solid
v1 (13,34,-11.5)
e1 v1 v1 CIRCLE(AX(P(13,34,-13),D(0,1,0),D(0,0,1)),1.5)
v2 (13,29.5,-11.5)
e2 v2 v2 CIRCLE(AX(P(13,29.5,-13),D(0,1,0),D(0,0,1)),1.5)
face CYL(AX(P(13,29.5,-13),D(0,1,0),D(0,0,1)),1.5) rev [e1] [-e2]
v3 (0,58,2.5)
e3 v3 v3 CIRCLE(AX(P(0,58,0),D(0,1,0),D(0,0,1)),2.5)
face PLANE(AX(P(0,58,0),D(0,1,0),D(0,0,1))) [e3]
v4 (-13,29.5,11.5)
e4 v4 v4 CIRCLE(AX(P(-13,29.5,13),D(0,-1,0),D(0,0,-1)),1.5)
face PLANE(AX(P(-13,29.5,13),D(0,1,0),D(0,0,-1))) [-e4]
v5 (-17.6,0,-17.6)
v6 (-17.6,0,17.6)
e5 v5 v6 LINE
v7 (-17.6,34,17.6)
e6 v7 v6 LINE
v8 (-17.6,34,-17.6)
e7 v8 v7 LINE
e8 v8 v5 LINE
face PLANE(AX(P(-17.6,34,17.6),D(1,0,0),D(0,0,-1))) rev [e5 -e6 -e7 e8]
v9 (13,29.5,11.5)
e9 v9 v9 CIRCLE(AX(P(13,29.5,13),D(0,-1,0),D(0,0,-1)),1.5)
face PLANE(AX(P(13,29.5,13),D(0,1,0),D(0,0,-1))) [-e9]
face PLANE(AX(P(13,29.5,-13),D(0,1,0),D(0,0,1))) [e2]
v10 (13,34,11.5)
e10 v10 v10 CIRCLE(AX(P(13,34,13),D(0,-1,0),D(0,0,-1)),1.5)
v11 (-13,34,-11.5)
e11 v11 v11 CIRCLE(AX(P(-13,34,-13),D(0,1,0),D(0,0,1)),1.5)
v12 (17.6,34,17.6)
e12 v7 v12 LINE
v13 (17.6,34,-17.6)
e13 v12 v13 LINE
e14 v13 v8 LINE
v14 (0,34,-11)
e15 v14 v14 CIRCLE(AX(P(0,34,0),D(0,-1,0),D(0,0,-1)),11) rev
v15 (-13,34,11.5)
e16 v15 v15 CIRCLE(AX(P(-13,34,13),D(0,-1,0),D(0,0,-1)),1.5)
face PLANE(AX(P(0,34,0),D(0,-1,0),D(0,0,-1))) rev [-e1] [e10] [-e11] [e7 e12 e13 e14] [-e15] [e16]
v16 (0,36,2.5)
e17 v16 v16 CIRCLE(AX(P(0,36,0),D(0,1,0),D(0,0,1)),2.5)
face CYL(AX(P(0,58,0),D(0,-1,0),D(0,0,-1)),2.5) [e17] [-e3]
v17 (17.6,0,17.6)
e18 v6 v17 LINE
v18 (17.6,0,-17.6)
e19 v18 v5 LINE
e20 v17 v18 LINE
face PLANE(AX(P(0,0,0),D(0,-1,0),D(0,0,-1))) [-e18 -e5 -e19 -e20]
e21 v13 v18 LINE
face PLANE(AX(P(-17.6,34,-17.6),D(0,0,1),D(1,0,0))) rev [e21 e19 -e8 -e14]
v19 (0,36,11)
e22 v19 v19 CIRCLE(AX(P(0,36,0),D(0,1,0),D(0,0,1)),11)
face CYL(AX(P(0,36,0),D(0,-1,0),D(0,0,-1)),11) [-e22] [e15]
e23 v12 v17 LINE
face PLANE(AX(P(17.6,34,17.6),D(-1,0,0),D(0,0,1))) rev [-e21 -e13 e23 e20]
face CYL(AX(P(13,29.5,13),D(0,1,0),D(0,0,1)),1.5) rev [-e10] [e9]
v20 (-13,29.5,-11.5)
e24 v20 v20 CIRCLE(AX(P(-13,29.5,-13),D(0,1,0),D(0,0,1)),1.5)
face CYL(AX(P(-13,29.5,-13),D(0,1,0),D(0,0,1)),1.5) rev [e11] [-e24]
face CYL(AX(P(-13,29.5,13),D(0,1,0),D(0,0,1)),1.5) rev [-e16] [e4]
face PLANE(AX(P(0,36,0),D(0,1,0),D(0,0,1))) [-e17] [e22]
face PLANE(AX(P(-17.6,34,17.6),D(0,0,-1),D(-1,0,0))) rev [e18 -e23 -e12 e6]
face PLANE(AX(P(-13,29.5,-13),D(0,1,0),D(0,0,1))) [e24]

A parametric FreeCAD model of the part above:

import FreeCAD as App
import Part
import Sketcher
Q = App.Units.Quantity

doc = App.newDocument("Part")
body = doc.addObject("PartDesign::Body", "Body")

sketch1 = doc.addObject("Sketcher::SketchObject", "Sketch")
body.addObject(sketch1)
sketch1.AttachmentSupport = (doc.XZ_Plane, [""])
sketch1.MapMode = "FlatFace"
sketch1.addGeometry(Part.LineSegment(App.Vector(-18, -18, 0), App.Vector(-18, 18, 0)), False)
sketch1.addGeometry(Part.LineSegment(App.Vector(-18, 18, 0), App.Vector(18, 18, 0)), False)
sketch1.addGeometry(Part.LineSegment(App.Vector(18, 18, 0), App.Vector(18, -18, 0)), False)
sketch1.addGeometry(Part.LineSegment(App.Vector(18, -18, 0), App.Vector(-18, -18, 0)), False)
sketch1.addConstraint(Sketcher.Constraint("Coincident", 0, 2, 1, 1))
sketch1.addConstraint(Sketcher.Constraint("Coincident", 1, 2, 2, 1))
sketch1.addConstraint(Sketcher.Constraint("Coincident", 2, 2, 3, 1))
sketch1.addConstraint(Sketcher.Constraint("Coincident", 3, 2, 0, 1))
sketch1.addConstraint(Sketcher.Constraint("Vertical", 0))
sketch1.addConstraint(Sketcher.Constraint("Horizontal", 1))
sketch1.addConstraint(Sketcher.Constraint("Vertical", 2))
sketch1.addConstraint(Sketcher.Constraint("Horizontal", 3))
sketch1.addConstraint(Sketcher.Constraint("Symmetric", 0, 2, 2, 2, -1, 1))
sketch1.addConstraint(Sketcher.Constraint("Equal", 3, 0))
sketch1.addConstraint(Sketcher.Constraint("DistanceX", 1, 1, 1, 2, Q("35.2 mm")))
pad1 = doc.addObject("PartDesign::Pad", "Pad")
body.addObject(pad1)
pad1.Profile = sketch1
pad1.Length = 34
pad1.Reversed = True

sketch2 = doc.addObject("Sketcher::SketchObject", "Sketch001")
body.addObject(sketch2)
sketch2.AttachmentSupport = (doc.XZ_Plane, [""])
sketch2.MapMode = "FlatFace"
sketch2.AttachmentOffset = App.Placement(App.Vector(0, 0, -34), App.Rotation())
sketch2.addGeometry(Part.Circle(App.Vector(-13, -13, 0), App.Vector(0, 0, 1), 1.5), False)
sketch2.addGeometry(Part.Circle(App.Vector(13, -13, 0), App.Vector(0, 0, 1), 1.5), False)
sketch2.addConstraint(Sketcher.Constraint("Equal", 0, 1))
sketch2.addConstraint(Sketcher.Constraint("Symmetric", 0, 3, 1, 3, -2))
sketch2.addConstraint(Sketcher.Constraint("Diameter", 0, Q("3 mm")))
sketch2.addConstraint(Sketcher.Constraint("DistanceX", 0, 3, -1, 1, Q("13 mm")))
sketch2.addConstraint(Sketcher.Constraint("DistanceY", 0, 3, -1, 1, Q("13 mm")))
pocket1 = doc.addObject("PartDesign::Pocket", "Pocket")
body.addObject(pocket1)
pocket1.Profile = sketch2
pocket1.Length = 4.5
pocket1.Reversed = True
doc.recompute()

mirrored = doc.addObject("PartDesign::Mirrored", "Mirrored")
body.addObject(mirrored)
mirrored.Originals = [pocket1]
mirrored.MirrorPlane = (doc.XY_Plane, [""])
body.Tip = mirrored

sketch3 = doc.addObject("Sketcher::SketchObject", "Sketch002")
body.addObject(sketch3)
sketch3.AttachmentSupport = (doc.XZ_Plane, [""])
sketch3.MapMode = "FlatFace"
sketch3.AttachmentOffset = App.Placement(App.Vector(0, 0, -34), App.Rotation())
sketch3.addGeometry(Part.Circle(App.Vector(0, 0, 0), App.Vector(0, 0, 1), 11), False)
sketch3.addConstraint(Sketcher.Constraint("Coincident", 0, 3, -1, 1))
sketch3.addConstraint(Sketcher.Constraint("Diameter", 0, Q("22 mm")))
pad2 = doc.addObject("PartDesign::Pad", "Pad001")
body.addObject(pad2)
pad2.Profile = sketch3
pad2.Length = 2
pad2.Reversed = True

sketch4 = doc.addObject("Sketcher::SketchObject", "Sketch003")
body.addObject(sketch4)
sketch4.AttachmentSupport = (doc.XZ_Plane, [""])
sketch4.MapMode = "FlatFace"
sketch4.AttachmentOffset = App.Placement(App.Vector(0, 0, -36), App.Rotation())
sketch4.addGeometry(Part.Circle(App.Vector(0, 0, 0), App.Vector(0, 0, 1), 2.5), False)
sketch4.addConstraint(Sketcher.Constraint("Coincident", 0, 3, -1, 1))
sketch4.addConstraint(Sketcher.Constraint("Diameter", 0, Q("5 mm")))
pad3 = doc.addObject("PartDesign::Pad", "Pad002")
body.addObject(pad3)
pad3.Profile = sketch4
pad3.Length = 22
pad3.Reversed = True

doc.recompute()
